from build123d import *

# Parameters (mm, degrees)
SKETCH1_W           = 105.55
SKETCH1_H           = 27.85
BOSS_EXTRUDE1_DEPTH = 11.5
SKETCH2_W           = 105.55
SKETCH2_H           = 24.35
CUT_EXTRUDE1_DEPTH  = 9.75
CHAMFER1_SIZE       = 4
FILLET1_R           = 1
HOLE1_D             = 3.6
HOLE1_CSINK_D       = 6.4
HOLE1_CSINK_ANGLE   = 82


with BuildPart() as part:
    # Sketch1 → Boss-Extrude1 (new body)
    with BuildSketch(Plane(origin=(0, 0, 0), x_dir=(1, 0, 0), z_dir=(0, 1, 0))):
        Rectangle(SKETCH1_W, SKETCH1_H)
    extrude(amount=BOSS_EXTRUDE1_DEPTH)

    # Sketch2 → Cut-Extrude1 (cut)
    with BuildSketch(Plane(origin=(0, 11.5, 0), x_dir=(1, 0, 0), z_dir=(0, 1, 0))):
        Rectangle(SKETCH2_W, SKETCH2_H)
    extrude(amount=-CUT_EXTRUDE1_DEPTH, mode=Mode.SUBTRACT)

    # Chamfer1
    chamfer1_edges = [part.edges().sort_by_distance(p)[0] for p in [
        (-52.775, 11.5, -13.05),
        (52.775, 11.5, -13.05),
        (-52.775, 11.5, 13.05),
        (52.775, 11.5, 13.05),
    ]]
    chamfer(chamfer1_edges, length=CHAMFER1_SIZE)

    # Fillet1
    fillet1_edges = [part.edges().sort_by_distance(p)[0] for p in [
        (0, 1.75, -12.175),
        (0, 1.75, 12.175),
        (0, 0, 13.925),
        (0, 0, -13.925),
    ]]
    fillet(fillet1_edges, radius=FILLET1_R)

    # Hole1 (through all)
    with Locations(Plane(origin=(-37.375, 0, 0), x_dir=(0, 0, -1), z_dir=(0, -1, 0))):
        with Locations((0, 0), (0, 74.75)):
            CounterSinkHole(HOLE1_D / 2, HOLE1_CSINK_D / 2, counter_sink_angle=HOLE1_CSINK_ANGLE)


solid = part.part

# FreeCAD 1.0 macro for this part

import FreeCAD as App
import Part
import Sketcher

V = App.Vector
Q = App.Units.Quantity


def edges_at(feature, points):
    """Names of the edges that pass closest to the given points."""
    edges = feature.Shape.Edges
    near = lambda p: min(range(len(edges)), key=lambda i: edges[i].distToShape(Part.Vertex(*p))[0])
    return sorted({f"Edge{near(p) + 1}" for p in points})


def add_polygon(sketch, points):
    """Adds a closed chain of lines whose ends are joined by coincident constraints."""
    first, n = sketch.GeometryCount, len(points)
    for a, b in zip(points, points[1:] + points[:1]):
        sketch.addGeometry(Part.LineSegment(App.Vector(*a, 0), App.Vector(*b, 0)), False)
    for i in range(n):
        sketch.addConstraint(Sketcher.Constraint("Coincident", first + i, 2, first + (i + 1) % n, 1))

doc = App.newDocument("Part")
body = doc.addObject("PartDesign::Body", "Body")

# Sketch on XZ plane
sketch1 = body.newObject("Sketcher::SketchObject", "Sketch")
sketch1.AttachmentSupport = (doc.getObject("XZ_Plane"), [""])
sketch1.MapMode = "FlatFace"
add_polygon(sketch1, [(-52.775, -13.925), (-52.775, 13.925), (52.775, 13.925), (52.775, -13.925)])  # lines 0-3
sketch1.addConstraint(Sketcher.Constraint("Vertical", 0))
sketch1.addConstraint(Sketcher.Constraint("Horizontal", 1))
sketch1.addConstraint(Sketcher.Constraint("Vertical", 2))
sketch1.addConstraint(Sketcher.Constraint("Horizontal", 3))
sketch1.addConstraint(Sketcher.Constraint("Symmetric", 0, 2, 2, 2, -1, 1))
sketch1.addConstraint(Sketcher.Constraint("DistanceX", 1, 1, 1, 2, Q("105.55 mm")))
sketch1.addConstraint(Sketcher.Constraint("DistanceY", 0, 1, 0, 2, Q("27.85 mm")))
pad1 = body.newObject("PartDesign::Pad", "Pad")
pad1.Profile = sketch1
pad1.Length = 11.5
pad1.Reversed = True

# Sketch on XZ plane
sketch2 = body.newObject("Sketcher::SketchObject", "Sketch001")
sketch2.AttachmentSupport = (doc.getObject("XZ_Plane"), [""])
sketch2.MapMode = "FlatFace"
sketch2.AttachmentOffset = App.Placement(V(0, 0, -11.5), App.Rotation())
add_polygon(sketch2, [(-52.775, -12.175), (-52.775, 12.175), (52.775, 12.175), (52.775, -12.175)])  # lines 0-3
sketch2.addConstraint(Sketcher.Constraint("Vertical", 0))
sketch2.addConstraint(Sketcher.Constraint("Horizontal", 1))
sketch2.addConstraint(Sketcher.Constraint("Vertical", 2))
sketch2.addConstraint(Sketcher.Constraint("Horizontal", 3))
sketch2.addConstraint(Sketcher.Constraint("Symmetric", 0, 2, 2, 2, -1, 1))
sketch2.addConstraint(Sketcher.Constraint("DistanceX", 1, 1, 1, 2, Q("105.55 mm")))
sketch2.addConstraint(Sketcher.Constraint("DistanceY", 0, 1, 0, 2, Q("24.35 mm")))
pocket1 = body.newObject("PartDesign::Pocket", "Pocket")
pocket1.Profile = sketch2
pocket1.Length = 9.75
pocket1.Reversed = True
doc.recompute()

chamfer = body.newObject("PartDesign::Chamfer", "Chamfer")
chamfer.Base = (pocket1, edges_at(pocket1, [
    (-52.775, 11.5, -13.05),
    (52.775, 11.5, -13.05),
    (-52.775, 11.5, 13.05),
    (52.775, 11.5, 13.05),
]))
chamfer.Size = 4
doc.recompute()

fillet = body.newObject("PartDesign::Fillet", "Fillet")
fillet.Base = (chamfer, edges_at(chamfer, [
    (0, 1.75, -12.175),
    (0, 1.75, 12.175),
    (0, 0, 13.925),
    (0, 0, -13.925),
]))
fillet.Radius = 1

# Sketch on XZ plane
sketch3 = body.newObject("Sketcher::SketchObject", "Sketch002")
sketch3.AttachmentSupport = (doc.getObject("XZ_Plane"), [""])
sketch3.MapMode = "FlatFace"
sketch3.addGeometry(Part.Circle(V(-37.375, 0, 0), V(0, 0, 1), 1.8), False)
sketch3.addGeometry(Part.Circle(V(37.375, 0, 0), V(0, 0, 1), 1.8), False)
sketch3.addConstraint(Sketcher.Constraint("Equal", 0, 1))
sketch3.addConstraint(Sketcher.Constraint("Symmetric", 0, 3, 1, 3, -1, 1))
sketch3.addConstraint(Sketcher.Constraint("PointOnObject", 0, 3, -1))
sketch3.addConstraint(Sketcher.Constraint("Diameter", 0, Q("3.6 mm")))
sketch3.addConstraint(Sketcher.Constraint("DistanceX", 0, 3, 1, 3, Q("74.75 mm")))
doc.recompute()
hole = body.newObject("PartDesign::Hole", "Hole")
hole.Profile = sketch3
hole.ThreadType = "None"
hole.Diameter = 3.6
hole.DepthType = "ThroughAll"
hole.HoleCutType = "Countersink"
hole.HoleCutDiameter = 6.4
hole.HoleCutCountersinkAngle = 82

doc.recompute()
